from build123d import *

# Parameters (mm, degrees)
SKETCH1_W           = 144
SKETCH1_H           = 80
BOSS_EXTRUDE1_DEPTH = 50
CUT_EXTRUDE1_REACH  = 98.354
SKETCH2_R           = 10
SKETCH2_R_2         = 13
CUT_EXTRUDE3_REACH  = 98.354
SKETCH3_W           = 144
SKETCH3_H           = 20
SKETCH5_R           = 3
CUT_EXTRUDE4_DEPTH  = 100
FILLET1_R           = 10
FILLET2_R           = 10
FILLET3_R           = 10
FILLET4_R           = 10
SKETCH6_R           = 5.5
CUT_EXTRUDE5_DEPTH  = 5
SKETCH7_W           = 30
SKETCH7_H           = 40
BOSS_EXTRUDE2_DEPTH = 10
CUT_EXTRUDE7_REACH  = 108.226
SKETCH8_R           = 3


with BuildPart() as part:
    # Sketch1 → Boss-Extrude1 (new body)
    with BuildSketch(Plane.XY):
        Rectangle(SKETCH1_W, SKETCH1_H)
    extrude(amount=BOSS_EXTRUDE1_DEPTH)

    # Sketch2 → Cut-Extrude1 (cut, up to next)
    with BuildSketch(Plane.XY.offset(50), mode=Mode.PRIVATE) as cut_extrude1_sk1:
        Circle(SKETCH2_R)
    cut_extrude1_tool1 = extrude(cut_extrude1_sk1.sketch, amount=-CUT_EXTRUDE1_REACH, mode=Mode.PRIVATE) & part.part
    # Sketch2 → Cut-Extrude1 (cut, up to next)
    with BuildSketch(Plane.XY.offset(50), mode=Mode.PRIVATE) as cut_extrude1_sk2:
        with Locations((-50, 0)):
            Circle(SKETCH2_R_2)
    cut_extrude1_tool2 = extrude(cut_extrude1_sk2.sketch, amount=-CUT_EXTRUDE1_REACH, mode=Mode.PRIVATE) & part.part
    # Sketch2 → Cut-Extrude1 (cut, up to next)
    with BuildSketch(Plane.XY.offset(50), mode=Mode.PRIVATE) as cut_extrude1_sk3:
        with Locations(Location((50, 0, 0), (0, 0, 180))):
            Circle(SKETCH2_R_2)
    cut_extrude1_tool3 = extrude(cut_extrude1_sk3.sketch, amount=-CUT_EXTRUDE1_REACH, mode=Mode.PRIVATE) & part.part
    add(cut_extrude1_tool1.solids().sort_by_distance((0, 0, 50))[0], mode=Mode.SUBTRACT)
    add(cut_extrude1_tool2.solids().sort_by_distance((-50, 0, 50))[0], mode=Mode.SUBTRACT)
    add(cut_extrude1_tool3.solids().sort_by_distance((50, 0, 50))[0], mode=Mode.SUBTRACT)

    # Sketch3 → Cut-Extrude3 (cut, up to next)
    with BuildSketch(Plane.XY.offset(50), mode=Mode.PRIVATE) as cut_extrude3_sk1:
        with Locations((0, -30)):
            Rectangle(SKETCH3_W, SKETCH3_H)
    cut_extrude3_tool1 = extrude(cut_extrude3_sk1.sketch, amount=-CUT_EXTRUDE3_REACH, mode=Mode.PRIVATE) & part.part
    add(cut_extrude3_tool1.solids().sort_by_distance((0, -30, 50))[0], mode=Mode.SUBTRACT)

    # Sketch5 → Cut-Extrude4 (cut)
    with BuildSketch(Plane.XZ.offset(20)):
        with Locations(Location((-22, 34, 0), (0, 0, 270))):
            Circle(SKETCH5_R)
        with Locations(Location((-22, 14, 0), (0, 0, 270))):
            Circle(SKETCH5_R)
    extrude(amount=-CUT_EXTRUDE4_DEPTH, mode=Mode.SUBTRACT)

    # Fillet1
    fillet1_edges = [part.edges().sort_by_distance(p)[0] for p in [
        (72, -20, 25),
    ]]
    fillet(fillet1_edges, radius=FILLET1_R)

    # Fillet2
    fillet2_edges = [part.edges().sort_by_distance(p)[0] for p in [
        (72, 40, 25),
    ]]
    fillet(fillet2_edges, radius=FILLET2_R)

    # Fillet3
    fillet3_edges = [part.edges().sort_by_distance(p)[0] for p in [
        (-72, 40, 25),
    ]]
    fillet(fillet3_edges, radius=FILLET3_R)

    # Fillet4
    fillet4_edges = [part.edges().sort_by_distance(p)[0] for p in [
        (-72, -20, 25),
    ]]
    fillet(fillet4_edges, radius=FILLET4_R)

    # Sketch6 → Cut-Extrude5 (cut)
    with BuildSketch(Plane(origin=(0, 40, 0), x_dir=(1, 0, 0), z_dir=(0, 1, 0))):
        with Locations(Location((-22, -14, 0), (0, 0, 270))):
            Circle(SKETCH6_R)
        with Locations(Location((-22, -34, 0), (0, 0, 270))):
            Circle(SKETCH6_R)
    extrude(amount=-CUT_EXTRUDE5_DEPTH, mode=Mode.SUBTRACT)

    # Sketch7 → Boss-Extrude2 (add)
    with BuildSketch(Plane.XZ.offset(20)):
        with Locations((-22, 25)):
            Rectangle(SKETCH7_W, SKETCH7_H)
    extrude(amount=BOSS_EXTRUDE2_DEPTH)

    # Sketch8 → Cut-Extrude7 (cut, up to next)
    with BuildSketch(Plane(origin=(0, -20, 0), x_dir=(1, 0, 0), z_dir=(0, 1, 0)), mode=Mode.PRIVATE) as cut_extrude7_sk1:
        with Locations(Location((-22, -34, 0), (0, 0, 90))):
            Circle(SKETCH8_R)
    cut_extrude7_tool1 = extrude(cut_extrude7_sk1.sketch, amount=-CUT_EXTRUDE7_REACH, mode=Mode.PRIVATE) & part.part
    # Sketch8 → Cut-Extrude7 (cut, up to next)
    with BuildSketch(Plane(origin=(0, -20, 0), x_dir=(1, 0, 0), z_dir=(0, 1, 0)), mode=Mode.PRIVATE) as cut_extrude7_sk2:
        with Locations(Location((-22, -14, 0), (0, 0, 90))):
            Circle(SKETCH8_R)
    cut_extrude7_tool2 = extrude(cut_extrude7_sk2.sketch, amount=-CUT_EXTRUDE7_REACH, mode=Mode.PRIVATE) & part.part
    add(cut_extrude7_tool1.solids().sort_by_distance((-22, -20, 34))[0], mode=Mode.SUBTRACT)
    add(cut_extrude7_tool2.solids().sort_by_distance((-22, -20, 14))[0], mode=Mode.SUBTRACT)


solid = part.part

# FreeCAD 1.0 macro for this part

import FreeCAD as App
import Part
import Sketcher
from FreeCAD import Vector


def edges_at(feature, points):
    """Names of the edges that pass closest to the given points."""
    edges = feature.Shape.Edges
    near = lambda p: min(range(len(edges)), key=lambda i: edges[i].distToShape(Part.Vertex(*p))[0])
    return sorted({f"Edge{near(p) + 1}" for p in points})


def add_polygon(sketch, points):
    """Adds a closed chain of lines whose ends are joined by coincident constraints."""
    first, n = sketch.GeometryCount, len(points)
    for a, b in zip(points, points[1:] + points[:1]):
        sketch.addGeometry(Part.LineSegment(App.Vector(*a, 0), App.Vector(*b, 0)), False)
    for i in range(n):
        sketch.addConstraint(Sketcher.Constraint("Coincident", first + i, 2, first + (i + 1) % n, 1))

doc = App.newDocument("Part")
body = doc.addObject("PartDesign::Body", "Body")

sketch1 = body.newObject("Sketcher::SketchObject", "Sketch")
sketch1.AttachmentSupport = (doc.getObject("XY_Plane"), [""])
sketch1.MapMode = "FlatFace"
add_polygon(sketch1, [(-72, 40), (-72, -40), (72, -40), (72, 40)])
sketch1.addConstraint(Sketcher.Constraint("Vertical", 0))
sketch1.addConstraint(Sketcher.Constraint("Horizontal", 1))
sketch1.addConstraint(Sketcher.Constraint("Vertical", 2))
sketch1.addConstraint(Sketcher.Constraint("Horizontal", 3))
sketch1.addConstraint(Sketcher.Constraint("Symmetric", 0, 2, 2, 2, -1, 1))
sketch1.addConstraint(Sketcher.Constraint("DistanceX", 1, 1, 1, 2, 144.0))
sketch1.addConstraint(Sketcher.Constraint("DistanceY", 0, 2, 0, 1, 80.0))
pad1 = body.newObject("PartDesign::Pad", "Pad")
pad1.Profile = sketch1
pad1.Length = 50

sketch2 = body.newObject("Sketcher::SketchObject", "Sketch001")
sketch2.AttachmentSupport = (doc.getObject("XY_Plane"), [""])
sketch2.MapMode = "FlatFace"
sketch2.AttachmentOffset = App.Placement(Vector(0, 0, 50), App.Rotation())
sketch2.addGeometry(Part.Circle(Vector(0, 0, 0), Vector(0, 0, 1), 10), False)
sketch2.addConstraint(Sketcher.Constraint("Coincident", 0, 3, -1, 1))
sketch2.addConstraint(Sketcher.Constraint("Diameter", 0, 20.0))
pocket1 = body.newObject("PartDesign::Pocket", "Pocket")
pocket1.Profile = sketch2
pocket1.Type = "UpToFirst"

sketch3 = body.newObject("Sketcher::SketchObject", "Sketch002")
sketch3.AttachmentSupport = (doc.getObject("XY_Plane"), [""])
sketch3.MapMode = "FlatFace"
sketch3.AttachmentOffset = App.Placement(Vector(0, 0, 50), App.Rotation())
sketch3.addGeometry(Part.Circle(Vector(-50, 0, 0), Vector(0, 0, 1), 13), False)
sketch3.addConstraint(Sketcher.Constraint("PointOnObject", 0, 3, -1))
sketch3.addConstraint(Sketcher.Constraint("Diameter", 0, 26.0))
sketch3.addConstraint(Sketcher.Constraint("DistanceX", 0, 3, -1, 1, 50.0))
pocket2 = body.newObject("PartDesign::Pocket", "Pocket001")
pocket2.Profile = sketch3
pocket2.Type = "UpToFirst"

sketch4 = body.newObject("Sketcher::SketchObject", "Sketch003")
sketch4.AttachmentSupport = (doc.getObject("XY_Plane"), [""])
sketch4.MapMode = "FlatFace"
sketch4.AttachmentOffset = App.Placement(Vector(0, 0, 50), App.Rotation())
sketch4.addGeometry(Part.Circle(Vector(50, 0, 0), Vector(0, 0, 1), 13), False)
sketch4.addConstraint(Sketcher.Constraint("PointOnObject", 0, 3, -1))
sketch4.addConstraint(Sketcher.Constraint("Diameter", 0, 26.0))
sketch4.addConstraint(Sketcher.Constraint("DistanceX", -1, 1, 0, 3, 50.0))
pocket3 = body.newObject("PartDesign::Pocket", "Pocket002")
pocket3.Profile = sketch4
pocket3.Type = "UpToFirst"

sketch5 = body.newObject("Sketcher::SketchObject", "Sketch004")
sketch5.AttachmentSupport = (doc.getObject("XY_Plane"), [""])
sketch5.MapMode = "FlatFace"
sketch5.AttachmentOffset = App.Placement(Vector(0, 0, 50), App.Rotation())
add_polygon(sketch5, [(-72, -20), (-72, -40), (72, -40), (72, -20)])
sketch5.addConstraint(Sketcher.Constraint("Vertical", 0))
sketch5.addConstraint(Sketcher.Constraint("Horizontal", 1))
sketch5.addConstraint(Sketcher.Constraint("Vertical", 2))
sketch5.addConstraint(Sketcher.Constraint("Horizontal", 3))
sketch5.addConstraint(Sketcher.Constraint("DistanceX", 1, 1, 1, 2, 144.0))
sketch5.addConstraint(Sketcher.Constraint("DistanceY", 0, 2, 0, 1, 20.0))
sketch5.addConstraint(Sketcher.Constraint("DistanceX", 0, 2, -1, 1, 72.0))
sketch5.addConstraint(Sketcher.Constraint("DistanceY", 0, 2, -1, 1, 40.0))
pocket4 = body.newObject("PartDesign::Pocket", "Pocket003")
pocket4.Profile = sketch5
pocket4.Type = "UpToFirst"

sketch6 = body.newObject("Sketcher::SketchObject", "Sketch005")
sketch6.AttachmentSupport = (doc.getObject("XZ_Plane"), [""])
sketch6.MapMode = "FlatFace"
sketch6.AttachmentOffset = App.Placement(Vector(0, 0, 20), App.Rotation())
sketch6.addGeometry(Part.Circle(Vector(-22, 34, 0), Vector(0, 0, 1), 3), False)
sketch6.addGeometry(Part.Circle(Vector(-22, 14, 0), Vector(0, 0, 1), 3), False)
sketch6.addConstraint(Sketcher.Constraint("Equal", 0, 1))
sketch6.addConstraint(Sketcher.Constraint("Vertical", 0, 3, 1, 3))
sketch6.addConstraint(Sketcher.Constraint("Diameter", 0, 6.0))
sketch6.addConstraint(Sketcher.Constraint("DistanceX", 0, 3, -1, 1, 22.0))
sketch6.addConstraint(Sketcher.Constraint("DistanceY", -1, 1, 0, 3, 34.0))
sketch6.addConstraint(Sketcher.Constraint("DistanceY", -1, 1, 1, 3, 14.0))
pocket5 = body.newObject("PartDesign::Pocket", "Pocket004")
pocket5.Profile = sketch6
pocket5.Length = 100
doc.recompute()

fillet = body.newObject("PartDesign::Fillet", "Fillet")
fillet.Base = (pocket5, edges_at(pocket5, [(72, -20, 25)]))
fillet.Radius = 10
doc.recompute()

fillet2 = body.newObject("PartDesign::Fillet", "Fillet001")
fillet2.Base = (fillet, edges_at(fillet, [(72, 40, 25)]))
fillet2.Radius = 10
doc.recompute()

fillet3 = body.newObject("PartDesign::Fillet", "Fillet002")
fillet3.Base = (fillet2, edges_at(fillet2, [(-72, 40, 25)]))
fillet3.Radius = 10
doc.recompute()

fillet4 = body.newObject("PartDesign::Fillet", "Fillet003")
fillet4.Base = (fillet3, edges_at(fillet3, [(-72, -20, 25)]))
fillet4.Radius = 10

sketch7 = body.newObject("Sketcher::SketchObject", "Sketch006")
sketch7.AttachmentSupport = (doc.getObject("XZ_Plane"), [""])
sketch7.MapMode = "FlatFace"
sketch7.AttachmentOffset = App.Placement(Vector(0, 0, -40), App.Rotation())
sketch7.addGeometry(Part.Circle(Vector(-22, 14, 0), Vector(0, 0, 1), 6), False)
sketch7.addGeometry(Part.Circle(Vector(-22, 34, 0), Vector(0, 0, 1), 6), False)
sketch7.addConstraint(Sketcher.Constraint("Equal", 0, 1))
sketch7.addConstraint(Sketcher.Constraint("Vertical", 0, 3, 1, 3))
sketch7.addConstraint(Sketcher.Constraint("Diameter", 0, 11.0))
sketch7.addConstraint(Sketcher.Constraint("DistanceX", 0, 3, -1, 1, 22.0))
sketch7.addConstraint(Sketcher.Constraint("DistanceY", -1, 1, 0, 3, 14.0))
sketch7.addConstraint(Sketcher.Constraint("DistanceY", -1, 1, 1, 3, 34.0))
pocket6 = body.newObject("PartDesign::Pocket", "Pocket005")
pocket6.Profile = sketch7
pocket6.Length = 5
pocket6.Reversed = True

sketch8 = body.newObject("Sketcher::SketchObject", "Sketch007")
sketch8.AttachmentSupport = (doc.getObject("XZ_Plane"), [""])
sketch8.MapMode = "FlatFace"
sketch8.AttachmentOffset = App.Placement(Vector(0, 0, 20), App.Rotation())
add_polygon(sketch8, [(-37, 45), (-37, 5), (-7, 5), (-7, 45)])
sketch8.addConstraint(Sketcher.Constraint("Vertical", 0))
sketch8.addConstraint(Sketcher.Constraint("Horizontal", 1))
sketch8.addConstraint(Sketcher.Constraint("Vertical", 2))
sketch8.addConstraint(Sketcher.Constraint("Horizontal", 3))
sketch8.addConstraint(Sketcher.Constraint("DistanceX", 1, 1, 1, 2, 30.0))
sketch8.addConstraint(Sketcher.Constraint("DistanceY", 0, 2, 0, 1, 40.0))
sketch8.addConstraint(Sketcher.Constraint("DistanceX", 0, 2, -1, 1, 37.0))
sketch8.addConstraint(Sketcher.Constraint("DistanceY", -1, 1, 0, 2, 5.0))
pad2 = body.newObject("PartDesign::Pad", "Pad001")
pad2.Profile = sketch8
pad2.Length = 10

sketch9 = body.newObject("Sketcher::SketchObject", "Sketch008")
sketch9.AttachmentSupport = (doc.getObject("XZ_Plane"), [""])
sketch9.MapMode = "FlatFace"
sketch9.AttachmentOffset = App.Placement(Vector(0, 0, 20), App.Rotation())
sketch9.addGeometry(Part.Circle(Vector(-22, 34, 0), Vector(0, 0, 1), 3), False)
sketch9.addConstraint(Sketcher.Constraint("Diameter", 0, 6.0))
sketch9.addConstraint(Sketcher.Constraint("DistanceX", 0, 3, -1, 1, 22.0))
sketch9.addConstraint(Sketcher.Constraint("DistanceY", -1, 1, 0, 3, 34.0))
pocket7 = body.newObject("PartDesign::Pocket", "Pocket006")
pocket7.Profile = sketch9
pocket7.Type = "UpToFirst"
pocket7.Reversed = True

sketch10 = body.newObject("Sketcher::SketchObject", "Sketch009")
sketch10.AttachmentSupport = (doc.getObject("XZ_Plane"), [""])
sketch10.MapMode = "FlatFace"
sketch10.AttachmentOffset = App.Placement(Vector(0, 0, 20), App.Rotation())
sketch10.addGeometry(Part.Circle(Vector(-22, 14, 0), Vector(0, 0, 1), 3), False)
sketch10.addConstraint(Sketcher.Constraint("Diameter", 0, 6.0))
sketch10.addConstraint(Sketcher.Constraint("DistanceX", 0, 3, -1, 1, 22.0))
sketch10.addConstraint(Sketcher.Constraint("DistanceY", -1, 1, 0, 3, 14.0))
pocket8 = body.newObject("PartDesign::Pocket", "Pocket007")
pocket8.Profile = sketch10
pocket8.Type = "UpToFirst"
pocket8.Reversed = True

doc.recompute()
